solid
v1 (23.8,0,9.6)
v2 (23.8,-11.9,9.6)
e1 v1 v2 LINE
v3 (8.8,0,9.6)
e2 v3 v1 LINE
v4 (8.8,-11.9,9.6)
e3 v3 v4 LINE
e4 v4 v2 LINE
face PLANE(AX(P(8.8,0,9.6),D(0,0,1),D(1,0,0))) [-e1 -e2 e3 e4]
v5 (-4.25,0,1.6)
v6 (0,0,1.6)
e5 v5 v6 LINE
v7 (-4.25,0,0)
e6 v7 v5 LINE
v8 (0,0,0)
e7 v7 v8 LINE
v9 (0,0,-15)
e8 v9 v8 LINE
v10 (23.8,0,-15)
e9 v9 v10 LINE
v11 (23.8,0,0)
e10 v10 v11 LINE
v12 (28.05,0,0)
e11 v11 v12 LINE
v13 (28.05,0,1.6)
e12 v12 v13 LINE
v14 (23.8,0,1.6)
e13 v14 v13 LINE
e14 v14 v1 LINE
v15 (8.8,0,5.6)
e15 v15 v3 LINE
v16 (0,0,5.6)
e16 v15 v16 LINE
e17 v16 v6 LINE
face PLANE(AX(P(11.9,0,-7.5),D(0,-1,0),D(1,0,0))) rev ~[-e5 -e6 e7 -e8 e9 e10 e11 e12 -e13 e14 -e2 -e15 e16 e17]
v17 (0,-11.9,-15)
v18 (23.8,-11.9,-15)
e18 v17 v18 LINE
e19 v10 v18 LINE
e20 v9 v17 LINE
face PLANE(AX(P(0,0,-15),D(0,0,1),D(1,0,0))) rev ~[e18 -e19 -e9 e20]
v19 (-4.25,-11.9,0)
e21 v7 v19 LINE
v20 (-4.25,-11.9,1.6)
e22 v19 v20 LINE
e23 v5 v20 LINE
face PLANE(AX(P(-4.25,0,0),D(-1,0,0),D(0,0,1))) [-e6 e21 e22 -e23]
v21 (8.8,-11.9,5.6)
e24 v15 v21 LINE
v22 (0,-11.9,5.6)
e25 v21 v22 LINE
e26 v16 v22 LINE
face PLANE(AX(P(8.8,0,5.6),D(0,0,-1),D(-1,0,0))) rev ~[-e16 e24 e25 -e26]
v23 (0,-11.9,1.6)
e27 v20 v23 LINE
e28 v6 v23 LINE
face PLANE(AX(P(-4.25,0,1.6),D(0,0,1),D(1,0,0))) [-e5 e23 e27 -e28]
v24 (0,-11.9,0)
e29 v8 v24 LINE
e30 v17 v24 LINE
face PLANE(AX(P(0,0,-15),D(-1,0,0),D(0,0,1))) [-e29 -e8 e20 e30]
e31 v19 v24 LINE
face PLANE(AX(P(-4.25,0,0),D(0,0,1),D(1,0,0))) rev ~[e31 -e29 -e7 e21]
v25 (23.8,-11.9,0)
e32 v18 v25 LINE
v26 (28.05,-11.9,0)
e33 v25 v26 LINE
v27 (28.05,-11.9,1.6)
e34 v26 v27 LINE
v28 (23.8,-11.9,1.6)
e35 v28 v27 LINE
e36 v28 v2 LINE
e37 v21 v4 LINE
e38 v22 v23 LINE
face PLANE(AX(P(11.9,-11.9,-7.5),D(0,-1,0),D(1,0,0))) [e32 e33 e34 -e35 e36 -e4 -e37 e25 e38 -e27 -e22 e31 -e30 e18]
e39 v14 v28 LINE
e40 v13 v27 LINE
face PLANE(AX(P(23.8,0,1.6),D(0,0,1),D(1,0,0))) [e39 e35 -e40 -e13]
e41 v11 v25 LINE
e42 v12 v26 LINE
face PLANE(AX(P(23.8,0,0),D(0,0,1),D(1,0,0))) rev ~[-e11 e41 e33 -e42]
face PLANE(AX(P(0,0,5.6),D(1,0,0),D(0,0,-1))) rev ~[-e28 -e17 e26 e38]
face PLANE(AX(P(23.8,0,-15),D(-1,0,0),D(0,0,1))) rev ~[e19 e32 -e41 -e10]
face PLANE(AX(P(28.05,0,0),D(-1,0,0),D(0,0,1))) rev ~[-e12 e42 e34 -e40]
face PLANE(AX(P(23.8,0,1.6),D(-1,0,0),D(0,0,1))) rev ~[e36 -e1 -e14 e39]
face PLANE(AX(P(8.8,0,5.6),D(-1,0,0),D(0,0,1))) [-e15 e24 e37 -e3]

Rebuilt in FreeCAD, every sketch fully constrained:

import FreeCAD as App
import Part
import Sketcher
from FreeCAD import Vector
Q = App.Units.Quantity

doc = App.newDocument("Part")
body = doc.addObject("PartDesign::Body", "Body")

# Sketch on XZ plane
sketch1 = body.newObject("Sketcher::SketchObject", "Sketch")
sketch1.AttachmentSupport = (doc.getObject("XZ_Plane"), [""])
sketch1.MapMode = "FlatFace"
sketch1.addGeometry([
    Part.LineSegment(Vector(0, 0, 0), Vector(0, -15, 0)),  # 0
    Part.LineSegment(Vector(0, -15, 0), Vector(23.8, -15, 0)),  # 1
    Part.LineSegment(Vector(23.8, -15, 0), Vector(23.8, 0, 0)),  # 2
    Part.LineSegment(Vector(23.8, 0, 0), Vector(28.1, 0, 0)),  # 3
    Part.LineSegment(Vector(28.1, 0, 0), Vector(28.1, 1.6, 0)),  # 4
    Part.LineSegment(Vector(28.1, 1.6, 0), Vector(23.8, 1.6, 0)),  # 5
    Part.LineSegment(Vector(23.8, 1.6, 0), Vector(23.8, 9.6, 0)),  # 6
    Part.LineSegment(Vector(23.8, 9.6, 0), Vector(8.8, 9.6, 0)),  # 7
    Part.LineSegment(Vector(8.8, 9.6, 0), Vector(8.8, 5.6, 0)),  # 8
    Part.LineSegment(Vector(8.8, 5.6, 0), Vector(0, 5.6, 0)),  # 9
    Part.LineSegment(Vector(0, 5.6, 0), Vector(0, 1.6, 0)),  # 10
    Part.LineSegment(Vector(0, 1.6, 0), Vector(-4.2, 1.6, 0)),  # 11
    Part.LineSegment(Vector(-4.2, 1.6, 0), Vector(-4.2, 0, 0)),  # 12
    Part.LineSegment(Vector(-4.2, 0, 0), Vector(0, 0, 0)),  # 13
], False)
sketch1.addConstraint([
    Sketcher.Constraint("Coincident", 0, 2, 1, 1),
    Sketcher.Constraint("Coincident", 1, 2, 2, 1),
    Sketcher.Constraint("Coincident", 2, 2, 3, 1),
    Sketcher.Constraint("Coincident", 3, 2, 4, 1),
    Sketcher.Constraint("Coincident", 4, 2, 5, 1),
    Sketcher.Constraint("Coincident", 5, 2, 6, 1),
    Sketcher.Constraint("Coincident", 6, 2, 7, 1),
    Sketcher.Constraint("Coincident", 7, 2, 8, 1),
    Sketcher.Constraint("Coincident", 8, 2, 9, 1),
    Sketcher.Constraint("Coincident", 9, 2, 10, 1),
    Sketcher.Constraint("Coincident", 10, 2, 11, 1),
    Sketcher.Constraint("Coincident", 11, 2, 12, 1),
    Sketcher.Constraint("Coincident", 12, 2, 13, 1),
    Sketcher.Constraint("Coincident", 13, 2, 0, 1),
    Sketcher.Constraint("Vertical", 0),
    Sketcher.Constraint("Horizontal", 1),
    Sketcher.Constraint("Vertical", 2),
    Sketcher.Constraint("Horizontal", 3),
    Sketcher.Constraint("Vertical", 4),
    Sketcher.Constraint("Horizontal", 5),
    Sketcher.Constraint("Vertical", 6),
    Sketcher.Constraint("Horizontal", 7),
    Sketcher.Constraint("Vertical", 8),
    Sketcher.Constraint("Horizontal", 9),
    Sketcher.Constraint("Vertical", 10),
    Sketcher.Constraint("Horizontal", 11),
    Sketcher.Constraint("Vertical", 12),
    Sketcher.Constraint("Horizontal", 13),
    Sketcher.Constraint("Coincident", 13, 2, -1, 1),
    Sketcher.Constraint("PointOnObject", 2, 2, -1),
    Sketcher.Constraint("PointOnObject", 9, 2, -2),
    Sketcher.Constraint("Horizontal", 5, 2, 10, 2),
    Sketcher.Constraint("Vertical", 2, 2, 5, 2),
    Sketcher.Constraint("Equal", 5, 11),
    Sketcher.Constraint("Equal", 7, 0),
    Sketcher.Constraint("Equal", 8, 10),
    Sketcher.Constraint("DistanceX", 7, 2, 7, 1, Q("15 mm")),
    Sketcher.Constraint("DistanceY", 6, 1, 6, 2, Q("8 mm")),
    Sketcher.Constraint("DistanceX", 1, 1, 1, 2, Q("23.8 mm")),
    Sketcher.Constraint("DistanceY", 4, 1, 4, 2, Q("1.6 mm")),
    Sketcher.Constraint("DistanceX", 3, 1, 3, 2, Q("4.25 mm")),
])
pad1 = body.newObject("PartDesign::Pad", "Pad")
pad1.Profile = sketch1
pad1.Length = 11.9

doc.recompute()
